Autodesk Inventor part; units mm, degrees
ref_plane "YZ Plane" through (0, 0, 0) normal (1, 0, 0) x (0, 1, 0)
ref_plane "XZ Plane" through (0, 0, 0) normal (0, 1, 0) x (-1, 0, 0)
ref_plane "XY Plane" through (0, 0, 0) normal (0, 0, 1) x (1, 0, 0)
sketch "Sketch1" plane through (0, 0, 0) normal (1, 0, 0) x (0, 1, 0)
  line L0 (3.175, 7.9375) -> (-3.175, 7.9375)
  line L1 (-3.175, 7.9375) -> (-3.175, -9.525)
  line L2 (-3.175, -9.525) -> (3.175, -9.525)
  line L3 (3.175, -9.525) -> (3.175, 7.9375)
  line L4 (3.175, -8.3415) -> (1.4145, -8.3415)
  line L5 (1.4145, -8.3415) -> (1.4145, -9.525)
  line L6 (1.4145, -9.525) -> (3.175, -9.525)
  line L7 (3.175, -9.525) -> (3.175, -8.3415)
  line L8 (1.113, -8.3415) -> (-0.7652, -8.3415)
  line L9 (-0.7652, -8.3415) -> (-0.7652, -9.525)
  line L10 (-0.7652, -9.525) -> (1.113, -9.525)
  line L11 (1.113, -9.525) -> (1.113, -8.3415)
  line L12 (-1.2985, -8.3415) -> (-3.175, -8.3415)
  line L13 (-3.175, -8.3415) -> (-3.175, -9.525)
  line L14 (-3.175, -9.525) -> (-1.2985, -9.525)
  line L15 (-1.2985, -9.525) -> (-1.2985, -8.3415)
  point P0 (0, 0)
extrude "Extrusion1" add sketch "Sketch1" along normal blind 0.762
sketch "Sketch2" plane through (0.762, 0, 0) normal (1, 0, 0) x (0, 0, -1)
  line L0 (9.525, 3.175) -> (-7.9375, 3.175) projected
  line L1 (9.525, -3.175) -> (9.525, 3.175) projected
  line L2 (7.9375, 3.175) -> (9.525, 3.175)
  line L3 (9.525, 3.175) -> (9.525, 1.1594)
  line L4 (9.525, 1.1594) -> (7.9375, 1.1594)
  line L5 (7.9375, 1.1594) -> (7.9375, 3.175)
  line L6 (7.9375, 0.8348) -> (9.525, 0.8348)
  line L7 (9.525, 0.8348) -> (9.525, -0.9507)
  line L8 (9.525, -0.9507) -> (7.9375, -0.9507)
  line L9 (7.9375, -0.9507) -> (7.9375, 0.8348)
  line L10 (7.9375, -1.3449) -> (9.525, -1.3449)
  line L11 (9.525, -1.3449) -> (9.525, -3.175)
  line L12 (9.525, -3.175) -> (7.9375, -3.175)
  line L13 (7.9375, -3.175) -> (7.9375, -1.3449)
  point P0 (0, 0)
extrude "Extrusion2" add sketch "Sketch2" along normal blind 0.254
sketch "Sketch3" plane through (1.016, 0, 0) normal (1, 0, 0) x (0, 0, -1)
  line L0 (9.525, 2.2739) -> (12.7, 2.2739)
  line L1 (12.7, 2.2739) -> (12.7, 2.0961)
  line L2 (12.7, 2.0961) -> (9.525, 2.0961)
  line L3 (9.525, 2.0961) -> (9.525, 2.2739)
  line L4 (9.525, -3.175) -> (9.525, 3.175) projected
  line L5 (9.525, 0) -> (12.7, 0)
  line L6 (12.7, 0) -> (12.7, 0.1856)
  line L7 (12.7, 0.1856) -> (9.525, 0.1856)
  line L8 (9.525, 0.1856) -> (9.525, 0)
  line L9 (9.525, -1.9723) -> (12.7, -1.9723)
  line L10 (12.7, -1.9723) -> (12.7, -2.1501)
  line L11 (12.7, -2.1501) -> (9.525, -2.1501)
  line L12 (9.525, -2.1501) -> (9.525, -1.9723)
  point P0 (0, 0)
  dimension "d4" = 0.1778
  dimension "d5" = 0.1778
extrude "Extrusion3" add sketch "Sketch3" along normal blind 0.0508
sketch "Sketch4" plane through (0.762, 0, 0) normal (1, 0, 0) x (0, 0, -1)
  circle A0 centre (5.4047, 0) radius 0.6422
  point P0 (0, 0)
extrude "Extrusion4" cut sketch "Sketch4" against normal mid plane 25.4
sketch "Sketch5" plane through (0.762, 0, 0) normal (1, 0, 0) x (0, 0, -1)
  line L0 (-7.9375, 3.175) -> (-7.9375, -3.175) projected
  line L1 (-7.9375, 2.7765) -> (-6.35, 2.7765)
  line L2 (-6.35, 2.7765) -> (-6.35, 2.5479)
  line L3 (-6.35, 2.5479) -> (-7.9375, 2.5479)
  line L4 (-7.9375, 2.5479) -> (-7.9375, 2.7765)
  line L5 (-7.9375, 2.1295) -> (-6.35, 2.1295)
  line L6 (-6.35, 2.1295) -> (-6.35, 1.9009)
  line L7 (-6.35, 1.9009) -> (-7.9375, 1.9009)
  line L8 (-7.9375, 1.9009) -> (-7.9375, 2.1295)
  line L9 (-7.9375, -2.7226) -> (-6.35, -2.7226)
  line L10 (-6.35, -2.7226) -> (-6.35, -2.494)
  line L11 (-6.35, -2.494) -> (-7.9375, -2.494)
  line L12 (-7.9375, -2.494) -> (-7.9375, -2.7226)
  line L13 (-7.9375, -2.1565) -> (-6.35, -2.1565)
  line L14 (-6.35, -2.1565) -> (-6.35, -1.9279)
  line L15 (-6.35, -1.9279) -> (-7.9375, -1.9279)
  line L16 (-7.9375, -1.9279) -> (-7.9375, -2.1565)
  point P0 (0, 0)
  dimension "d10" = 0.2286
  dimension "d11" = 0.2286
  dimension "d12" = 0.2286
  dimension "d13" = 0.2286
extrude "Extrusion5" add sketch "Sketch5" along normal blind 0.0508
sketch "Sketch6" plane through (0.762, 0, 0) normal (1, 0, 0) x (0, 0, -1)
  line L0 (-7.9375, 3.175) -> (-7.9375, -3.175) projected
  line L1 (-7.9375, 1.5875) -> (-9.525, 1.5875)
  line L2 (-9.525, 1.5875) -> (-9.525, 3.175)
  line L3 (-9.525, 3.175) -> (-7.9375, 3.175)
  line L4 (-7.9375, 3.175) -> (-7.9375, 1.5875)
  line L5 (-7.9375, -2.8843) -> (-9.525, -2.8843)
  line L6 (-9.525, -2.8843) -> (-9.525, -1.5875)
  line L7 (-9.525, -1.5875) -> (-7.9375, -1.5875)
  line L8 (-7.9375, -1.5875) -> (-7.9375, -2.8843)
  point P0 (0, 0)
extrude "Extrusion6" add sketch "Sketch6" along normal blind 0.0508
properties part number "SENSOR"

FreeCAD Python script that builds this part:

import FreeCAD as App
import Part
import Sketcher
Q = App.Units.Quantity


def add_polygon(sketch, points):
    """Adds a closed chain of lines whose ends are joined by coincident constraints."""
    first, n = sketch.GeometryCount, len(points)
    for a, b in zip(points, points[1:] + points[:1]):
        sketch.addGeometry(Part.LineSegment(App.Vector(*a, 0), App.Vector(*b, 0)), False)
    for i in range(n):
        sketch.addConstraint(Sketcher.Constraint("Coincident", first + i, 2, first + (i + 1) % n, 1))

doc = App.newDocument("Part")
params = doc.addObject("Spreadsheet::Sheet", "Params")
for row, (alias, value) in enumerate([
    ("sketch1_width", "0.25 in"),
    ("sketch1_height", "0.6875 in"),
    ("pad1_length", "0.03 in"),
    ("sketch2_height", "0.0625 in"),
    ("pad2_length", "0.01 in"),
    ("sketch3_width", "0.007 in"),
    ("sketch3_height", "0.125 in"),
    ("pad3_length", "0.002 in"),
    ("pocket1_length", "1 in"),
    ("sketch5_width", "0.009 in"),
    ("sketch5_height", "0.0625 in"),
    ("pad4_length", "0.002 in"),
    ("sketch6_width", "0.0625 in"),
    ("pad5_length", "0.002 in"),
], start=1):
    params.set(f"A{row}", alias)
    params.set(f"B{row}", "=" + value)
    params.setAlias(f"B{row}", alias)

body = doc.addObject("PartDesign::Body", "Body")
body.AllowCompound = True

# Sketch on YZ plane
sketch1 = body.newObject("Sketcher::SketchObject", "Sketch")
sketch1.AttachmentSupport = (doc.getObject("YZ_Plane"), [""])
sketch1.MapMode = "FlatFace"
add_polygon(sketch1, [(3.175, 7.9375), (-3.175, 7.9375), (-3.175, -9.525), (3.175, -9.525)])  # lines 0-3
sketch1.addConstraint([
    Sketcher.Constraint("Horizontal", 0),
    Sketcher.Constraint("Vertical", 1),
    Sketcher.Constraint("Horizontal", 2),
    Sketcher.Constraint("Vertical", 3),
    Sketcher.Constraint("DistanceX", 0, 2, 0, 1, Q("0.25 in")),
    Sketcher.Constraint("DistanceY", 1, 2, 1, 1, Q("0.6875 in")),
    Sketcher.Constraint("DistanceX", 0, 2, -1, 1, Q("0.125 in")),
    Sketcher.Constraint("DistanceY", -1, 1, 0, 2, Q("0.3125 in")),
])
sketch1.setExpression("Constraints[8]", "Params.sketch1_width")
sketch1.setExpression("Constraints[9]", "Params.sketch1_height")
pad1 = body.newObject("PartDesign::Pad", "Pad")
pad1.Profile = sketch1
pad1.setExpression("Length", "Params.pad1_length")

# Sketch on YZ plane
sketch2 = body.newObject("Sketcher::SketchObject", "Sketch001")
sketch2.AttachmentSupport = (doc.getObject("YZ_Plane"), [""])
sketch2.MapMode = "FlatFace"
sketch2.AttachmentOffset = App.Placement(App.Vector(0, 0, 0.03 * 25.4), App.Rotation())
add_polygon(sketch2, [(1.1594, -9.525), (3.175, -9.525), (3.175, -7.9375), (1.1594, -7.9375)])  # lines 0-3
add_polygon(sketch2, [(-3.175, -9.525), (-1.3449, -9.525), (-1.3449, -7.9375), (-3.175, -7.9375)])  # lines 4-7
add_polygon(sketch2, [(-0.9507, -9.525), (0.8348, -9.525), (0.8348, -7.9375), (-0.9507, -7.9375)])  # lines 8-11
sketch2.addConstraint([
    Sketcher.Constraint("Horizontal", 0),
    Sketcher.Constraint("Vertical", 1),
    Sketcher.Constraint("Horizontal", 2),
    Sketcher.Constraint("Vertical", 3),
    Sketcher.Constraint("Horizontal", 4),
    Sketcher.Constraint("Vertical", 5),
    Sketcher.Constraint("Horizontal", 6),
    Sketcher.Constraint("Vertical", 7),
    Sketcher.Constraint("Horizontal", 8),
    Sketcher.Constraint("Vertical", 9),
    Sketcher.Constraint("Horizontal", 10),
    Sketcher.Constraint("Vertical", 11),
    Sketcher.Constraint("Symmetric", 1, 2, 6, 2, -2),
    Sketcher.Constraint("Horizontal", 3, 2, 4, 2),
    Sketcher.Constraint("Horizontal", 7, 2, 8, 2),
    Sketcher.Constraint("Horizontal", 6, 2, 9, 2),
    Sketcher.Constraint("DistanceY", 1, 1, 1, 2, Q("0.0625 in")),
    Sketcher.Constraint("DistanceX", 6, 2, 1, 2, Q("0.25 in")),
    Sketcher.Constraint("DistanceX", 8, 1, 8, 2, Q("0.0703 in")),
    Sketcher.Constraint("DistanceY", 0, 2, -1, 1, Q("0.375 in")),
    Sketcher.Constraint("DistanceX", 0, 1, 0, 2, 2.0156),
    Sketcher.Constraint("DistanceX", 4, 1, 4, 2, 1.83),
    Sketcher.Constraint("DistanceX", -1, 1, 8, 2, 0.8348),
])
sketch2.setExpression("Constraints[28]", "Params.sketch2_height")
pad2 = body.newObject("PartDesign::Pad", "Pad001")
pad2.Profile = sketch2
pad2.setExpression("Length", "Params.pad2_length")

# Sketch on YZ plane
sketch3 = body.newObject("Sketcher::SketchObject", "Sketch002")
sketch3.AttachmentSupport = (doc.getObject("YZ_Plane"), [""])
sketch3.MapMode = "FlatFace"
sketch3.AttachmentOffset = App.Placement(App.Vector(0, 0, 0.04 * 25.4), App.Rotation())
add_polygon(sketch3, [(-1.9723, -12.7), (-1.9723, -9.525), (-2.1501, -9.525), (-2.1501, -12.7)])  # lines 0-3
add_polygon(sketch3, [(0.1856, -12.7), (0.1856, -9.525), (0, -9.525), (0, -12.7)])  # lines 4-7
add_polygon(sketch3, [(2.2739, -12.7), (2.2739, -9.525), (2.0961, -9.525), (2.0961, -12.7)])  # lines 8-11
sketch3.addConstraint([
    Sketcher.Constraint("Vertical", 0),
    Sketcher.Constraint("Horizontal", 1),
    Sketcher.Constraint("Vertical", 2),
    Sketcher.Constraint("Horizontal", 3),
    Sketcher.Constraint("Vertical", 4),
    Sketcher.Constraint("Horizontal", 5),
    Sketcher.Constraint("Vertical", 6),
    Sketcher.Constraint("Horizontal", 7),
    Sketcher.Constraint("Vertical", 8),
    Sketcher.Constraint("Horizontal", 9),
    Sketcher.Constraint("Vertical", 10),
    Sketcher.Constraint("Horizontal", 11),
    Sketcher.Constraint("PointOnObject", 5, 2, -2),
    Sketcher.Constraint("Horizontal", 1, 2, 4, 2),
    Sketcher.Constraint("Horizontal", 3, 2, 6, 2),
    Sketcher.Constraint("Horizontal", 5, 2, 8, 2),
    Sketcher.Constraint("Horizontal", 7, 2, 10, 2),
    Sketcher.Constraint("Equal", 3, 9),
    Sketcher.Constraint("DistanceX", 1, 2, 1, 1, Q("0.007 in")),
    Sketcher.Constraint("DistanceY", 2, 2, -1, 1, Q("0.5 in")),
    Sketcher.Constraint("DistanceY", 0, 1, 0, 2, Q("0.125 in")),
    Sketcher.Constraint("DistanceX", 5, 2, 5, 1, Q("0.0073 in")),
    Sketcher.Constraint("DistanceX", 0, 2, -1, 1, 1.9723),
    Sketcher.Constraint("DistanceX", -1, 1, 8, 2, 2.274),
])
sketch3.setExpression("Constraints[30]", "Params.sketch3_width")
sketch3.setExpression("Constraints[32]", "Params.sketch3_height")
pad3 = body.newObject("PartDesign::Pad", "Pad002")
pad3.Profile = sketch3
pad3.setExpression("Length", "Params.pad3_length")

# Sketch on YZ plane
sketch4 = body.newObject("Sketcher::SketchObject", "Sketch003")
sketch4.AttachmentSupport = (doc.getObject("YZ_Plane"), [""])
sketch4.MapMode = "FlatFace"
sketch4.AttachmentOffset = App.Placement(App.Vector(0, 0, 0.03 * 25.4), App.Rotation())
sketch4.addGeometry(Part.Circle(App.Vector(0, -5.4047, 0), App.Vector(0, 0, 1), 0.6422), False)
sketch4.addConstraint([
    Sketcher.Constraint("PointOnObject", 0, 3, -2),
    Sketcher.Constraint("Diameter", 0, 1.2844),
    Sketcher.Constraint("DistanceY", 0, 3, -1, 1, 5.4047),
])
pocket1 = body.newObject("PartDesign::Pocket", "Pocket")
pocket1.Profile = sketch4
pocket1.setExpression("Length", "Params.pocket1_length")
pocket1.Midplane = True

# Sketch on YZ plane
sketch5 = body.newObject("Sketcher::SketchObject", "Sketch004")
sketch5.AttachmentSupport = (doc.getObject("YZ_Plane"), [""])
sketch5.MapMode = "FlatFace"
sketch5.AttachmentOffset = App.Placement(App.Vector(0, 0, 0.03 * 25.4), App.Rotation())
add_polygon(sketch5, [(2.7765, 6.35), (2.7765, 7.9375), (2.5479, 7.9375), (2.5479, 6.35)])  # lines 0-3
add_polygon(sketch5, [(-2.494, 6.35), (-2.494, 7.9375), (-2.7226, 7.9375), (-2.7226, 6.35)])  # lines 4-7
add_polygon(sketch5, [(-1.9279, 6.35), (-1.9279, 7.9375), (-2.1565, 7.9375), (-2.1565, 6.35)])  # lines 8-11
add_polygon(sketch5, [(2.1295, 6.35), (2.1295, 7.9375), (1.9009, 7.9375), (1.9009, 6.35)])  # lines 12-15
sketch5.addConstraint([
    Sketcher.Constraint("Vertical", 0),
    Sketcher.Constraint("Horizontal", 1),
    Sketcher.Constraint("Vertical", 2),
    Sketcher.Constraint("Horizontal", 3),
    Sketcher.Constraint("Vertical", 4),
    Sketcher.Constraint("Horizontal", 5),
    Sketcher.Constraint("Vertical", 6),
    Sketcher.Constraint("Horizontal", 7),
    Sketcher.Constraint("Vertical", 8),
    Sketcher.Constraint("Horizontal", 9),
    Sketcher.Constraint("Vertical", 10),
    Sketcher.Constraint("Horizontal", 11),
    Sketcher.Constraint("Vertical", 12),
    Sketcher.Constraint("Horizontal", 13),
    Sketcher.Constraint("Vertical", 14),
    Sketcher.Constraint("Horizontal", 15),
    Sketcher.Constraint("Horizontal", 1, 2, 4, 2),
    Sketcher.Constraint("Horizontal", 3, 2, 6, 2),
    Sketcher.Constraint("Horizontal", 5, 2, 8, 2),
    Sketcher.Constraint("Horizontal", 7, 2, 10, 2),
    Sketcher.Constraint("Horizontal", 9, 2, 12, 2),
    Sketcher.Constraint("Horizontal", 11, 2, 14, 2),
    Sketcher.Constraint("Equal", 3, 5),
    Sketcher.Constraint("Equal", 7, 9),
    Sketcher.Constraint("Equal", 11, 13),
    Sketcher.Constraint("DistanceX", 1, 2, 1, 1, Q("0.009 in")),
    Sketcher.Constraint("DistanceY", 0, 1, 0, 2, Q("0.0625 in")),
    Sketcher.Constraint("DistanceY", -1, 1, 2, 2, Q("0.25 in")),
    Sketcher.Constraint("DistanceX", -1, 1, 0, 2, Q("0.1093 in")),
    Sketcher.Constraint("DistanceX", 4, 2, -1, 1, Q("0.0982 in")),
    Sketcher.Constraint("DistanceX", 8, 2, -1, 1, Q("0.0759 in")),
    Sketcher.Constraint("DistanceX", -1, 1, 12, 2, 2.1295),
])
sketch5.setExpression("Constraints[41]", "Params.sketch5_width")
sketch5.setExpression("Constraints[42]", "Params.sketch5_height")
pad4 = body.newObject("PartDesign::Pad", "Pad003")
pad4.Profile = sketch5
pad4.setExpression("Length", "Params.pad4_length")

# Sketch on YZ plane
sketch6 = body.newObject("Sketcher::SketchObject", "Sketch005")
sketch6.AttachmentSupport = (doc.getObject("YZ_Plane"), [""])
sketch6.MapMode = "FlatFace"
sketch6.AttachmentOffset = App.Placement(App.Vector(0, 0, 0.03 * 25.4), App.Rotation())
add_polygon(sketch6, [(-2.8843, 7.9375), (-1.5875, 7.9375), (-1.5875, 9.525), (-2.8843, 9.525)])  # lines 0-3
add_polygon(sketch6, [(1.5875, 7.9375), (3.175, 7.9375), (3.175, 9.525), (1.5875, 9.525)])  # lines 4-7
sketch6.addConstraint([
    Sketcher.Constraint("Horizontal", 0),
    Sketcher.Constraint("Vertical", 1),
    Sketcher.Constraint("Horizontal", 2),
    Sketcher.Constraint("Vertical", 3),
    Sketcher.Constraint("Horizontal", 4),
    Sketcher.Constraint("Vertical", 5),
    Sketcher.Constraint("Horizontal", 6),
    Sketcher.Constraint("Vertical", 7),
    Sketcher.Constraint("Symmetric", 1, 2, 6, 2, -2),
    Sketcher.Constraint("Horizontal", 3, 2, 4, 2),
    Sketcher.Constraint("Equal", 6, 1),
    Sketcher.Constraint("DistanceX", 4, 1, 4, 2, Q("0.0625 in")),
    Sketcher.Constraint("DistanceX", 0, 2, -1, 1, Q("0.0625 in")),
    Sketcher.Constraint("DistanceY", -1, 1, 0, 2, Q("0.3125 in")),
    Sketcher.Constraint("DistanceX", 0, 1, 0, 2, 1.2968),
])
sketch6.setExpression("Constraints[19]", "Params.sketch6_width")
pad5 = body.newObject("PartDesign::Pad", "Pad004")
pad5.Profile = sketch6
pad5.setExpression("Length", "Params.pad5_length")

doc.recompute()
